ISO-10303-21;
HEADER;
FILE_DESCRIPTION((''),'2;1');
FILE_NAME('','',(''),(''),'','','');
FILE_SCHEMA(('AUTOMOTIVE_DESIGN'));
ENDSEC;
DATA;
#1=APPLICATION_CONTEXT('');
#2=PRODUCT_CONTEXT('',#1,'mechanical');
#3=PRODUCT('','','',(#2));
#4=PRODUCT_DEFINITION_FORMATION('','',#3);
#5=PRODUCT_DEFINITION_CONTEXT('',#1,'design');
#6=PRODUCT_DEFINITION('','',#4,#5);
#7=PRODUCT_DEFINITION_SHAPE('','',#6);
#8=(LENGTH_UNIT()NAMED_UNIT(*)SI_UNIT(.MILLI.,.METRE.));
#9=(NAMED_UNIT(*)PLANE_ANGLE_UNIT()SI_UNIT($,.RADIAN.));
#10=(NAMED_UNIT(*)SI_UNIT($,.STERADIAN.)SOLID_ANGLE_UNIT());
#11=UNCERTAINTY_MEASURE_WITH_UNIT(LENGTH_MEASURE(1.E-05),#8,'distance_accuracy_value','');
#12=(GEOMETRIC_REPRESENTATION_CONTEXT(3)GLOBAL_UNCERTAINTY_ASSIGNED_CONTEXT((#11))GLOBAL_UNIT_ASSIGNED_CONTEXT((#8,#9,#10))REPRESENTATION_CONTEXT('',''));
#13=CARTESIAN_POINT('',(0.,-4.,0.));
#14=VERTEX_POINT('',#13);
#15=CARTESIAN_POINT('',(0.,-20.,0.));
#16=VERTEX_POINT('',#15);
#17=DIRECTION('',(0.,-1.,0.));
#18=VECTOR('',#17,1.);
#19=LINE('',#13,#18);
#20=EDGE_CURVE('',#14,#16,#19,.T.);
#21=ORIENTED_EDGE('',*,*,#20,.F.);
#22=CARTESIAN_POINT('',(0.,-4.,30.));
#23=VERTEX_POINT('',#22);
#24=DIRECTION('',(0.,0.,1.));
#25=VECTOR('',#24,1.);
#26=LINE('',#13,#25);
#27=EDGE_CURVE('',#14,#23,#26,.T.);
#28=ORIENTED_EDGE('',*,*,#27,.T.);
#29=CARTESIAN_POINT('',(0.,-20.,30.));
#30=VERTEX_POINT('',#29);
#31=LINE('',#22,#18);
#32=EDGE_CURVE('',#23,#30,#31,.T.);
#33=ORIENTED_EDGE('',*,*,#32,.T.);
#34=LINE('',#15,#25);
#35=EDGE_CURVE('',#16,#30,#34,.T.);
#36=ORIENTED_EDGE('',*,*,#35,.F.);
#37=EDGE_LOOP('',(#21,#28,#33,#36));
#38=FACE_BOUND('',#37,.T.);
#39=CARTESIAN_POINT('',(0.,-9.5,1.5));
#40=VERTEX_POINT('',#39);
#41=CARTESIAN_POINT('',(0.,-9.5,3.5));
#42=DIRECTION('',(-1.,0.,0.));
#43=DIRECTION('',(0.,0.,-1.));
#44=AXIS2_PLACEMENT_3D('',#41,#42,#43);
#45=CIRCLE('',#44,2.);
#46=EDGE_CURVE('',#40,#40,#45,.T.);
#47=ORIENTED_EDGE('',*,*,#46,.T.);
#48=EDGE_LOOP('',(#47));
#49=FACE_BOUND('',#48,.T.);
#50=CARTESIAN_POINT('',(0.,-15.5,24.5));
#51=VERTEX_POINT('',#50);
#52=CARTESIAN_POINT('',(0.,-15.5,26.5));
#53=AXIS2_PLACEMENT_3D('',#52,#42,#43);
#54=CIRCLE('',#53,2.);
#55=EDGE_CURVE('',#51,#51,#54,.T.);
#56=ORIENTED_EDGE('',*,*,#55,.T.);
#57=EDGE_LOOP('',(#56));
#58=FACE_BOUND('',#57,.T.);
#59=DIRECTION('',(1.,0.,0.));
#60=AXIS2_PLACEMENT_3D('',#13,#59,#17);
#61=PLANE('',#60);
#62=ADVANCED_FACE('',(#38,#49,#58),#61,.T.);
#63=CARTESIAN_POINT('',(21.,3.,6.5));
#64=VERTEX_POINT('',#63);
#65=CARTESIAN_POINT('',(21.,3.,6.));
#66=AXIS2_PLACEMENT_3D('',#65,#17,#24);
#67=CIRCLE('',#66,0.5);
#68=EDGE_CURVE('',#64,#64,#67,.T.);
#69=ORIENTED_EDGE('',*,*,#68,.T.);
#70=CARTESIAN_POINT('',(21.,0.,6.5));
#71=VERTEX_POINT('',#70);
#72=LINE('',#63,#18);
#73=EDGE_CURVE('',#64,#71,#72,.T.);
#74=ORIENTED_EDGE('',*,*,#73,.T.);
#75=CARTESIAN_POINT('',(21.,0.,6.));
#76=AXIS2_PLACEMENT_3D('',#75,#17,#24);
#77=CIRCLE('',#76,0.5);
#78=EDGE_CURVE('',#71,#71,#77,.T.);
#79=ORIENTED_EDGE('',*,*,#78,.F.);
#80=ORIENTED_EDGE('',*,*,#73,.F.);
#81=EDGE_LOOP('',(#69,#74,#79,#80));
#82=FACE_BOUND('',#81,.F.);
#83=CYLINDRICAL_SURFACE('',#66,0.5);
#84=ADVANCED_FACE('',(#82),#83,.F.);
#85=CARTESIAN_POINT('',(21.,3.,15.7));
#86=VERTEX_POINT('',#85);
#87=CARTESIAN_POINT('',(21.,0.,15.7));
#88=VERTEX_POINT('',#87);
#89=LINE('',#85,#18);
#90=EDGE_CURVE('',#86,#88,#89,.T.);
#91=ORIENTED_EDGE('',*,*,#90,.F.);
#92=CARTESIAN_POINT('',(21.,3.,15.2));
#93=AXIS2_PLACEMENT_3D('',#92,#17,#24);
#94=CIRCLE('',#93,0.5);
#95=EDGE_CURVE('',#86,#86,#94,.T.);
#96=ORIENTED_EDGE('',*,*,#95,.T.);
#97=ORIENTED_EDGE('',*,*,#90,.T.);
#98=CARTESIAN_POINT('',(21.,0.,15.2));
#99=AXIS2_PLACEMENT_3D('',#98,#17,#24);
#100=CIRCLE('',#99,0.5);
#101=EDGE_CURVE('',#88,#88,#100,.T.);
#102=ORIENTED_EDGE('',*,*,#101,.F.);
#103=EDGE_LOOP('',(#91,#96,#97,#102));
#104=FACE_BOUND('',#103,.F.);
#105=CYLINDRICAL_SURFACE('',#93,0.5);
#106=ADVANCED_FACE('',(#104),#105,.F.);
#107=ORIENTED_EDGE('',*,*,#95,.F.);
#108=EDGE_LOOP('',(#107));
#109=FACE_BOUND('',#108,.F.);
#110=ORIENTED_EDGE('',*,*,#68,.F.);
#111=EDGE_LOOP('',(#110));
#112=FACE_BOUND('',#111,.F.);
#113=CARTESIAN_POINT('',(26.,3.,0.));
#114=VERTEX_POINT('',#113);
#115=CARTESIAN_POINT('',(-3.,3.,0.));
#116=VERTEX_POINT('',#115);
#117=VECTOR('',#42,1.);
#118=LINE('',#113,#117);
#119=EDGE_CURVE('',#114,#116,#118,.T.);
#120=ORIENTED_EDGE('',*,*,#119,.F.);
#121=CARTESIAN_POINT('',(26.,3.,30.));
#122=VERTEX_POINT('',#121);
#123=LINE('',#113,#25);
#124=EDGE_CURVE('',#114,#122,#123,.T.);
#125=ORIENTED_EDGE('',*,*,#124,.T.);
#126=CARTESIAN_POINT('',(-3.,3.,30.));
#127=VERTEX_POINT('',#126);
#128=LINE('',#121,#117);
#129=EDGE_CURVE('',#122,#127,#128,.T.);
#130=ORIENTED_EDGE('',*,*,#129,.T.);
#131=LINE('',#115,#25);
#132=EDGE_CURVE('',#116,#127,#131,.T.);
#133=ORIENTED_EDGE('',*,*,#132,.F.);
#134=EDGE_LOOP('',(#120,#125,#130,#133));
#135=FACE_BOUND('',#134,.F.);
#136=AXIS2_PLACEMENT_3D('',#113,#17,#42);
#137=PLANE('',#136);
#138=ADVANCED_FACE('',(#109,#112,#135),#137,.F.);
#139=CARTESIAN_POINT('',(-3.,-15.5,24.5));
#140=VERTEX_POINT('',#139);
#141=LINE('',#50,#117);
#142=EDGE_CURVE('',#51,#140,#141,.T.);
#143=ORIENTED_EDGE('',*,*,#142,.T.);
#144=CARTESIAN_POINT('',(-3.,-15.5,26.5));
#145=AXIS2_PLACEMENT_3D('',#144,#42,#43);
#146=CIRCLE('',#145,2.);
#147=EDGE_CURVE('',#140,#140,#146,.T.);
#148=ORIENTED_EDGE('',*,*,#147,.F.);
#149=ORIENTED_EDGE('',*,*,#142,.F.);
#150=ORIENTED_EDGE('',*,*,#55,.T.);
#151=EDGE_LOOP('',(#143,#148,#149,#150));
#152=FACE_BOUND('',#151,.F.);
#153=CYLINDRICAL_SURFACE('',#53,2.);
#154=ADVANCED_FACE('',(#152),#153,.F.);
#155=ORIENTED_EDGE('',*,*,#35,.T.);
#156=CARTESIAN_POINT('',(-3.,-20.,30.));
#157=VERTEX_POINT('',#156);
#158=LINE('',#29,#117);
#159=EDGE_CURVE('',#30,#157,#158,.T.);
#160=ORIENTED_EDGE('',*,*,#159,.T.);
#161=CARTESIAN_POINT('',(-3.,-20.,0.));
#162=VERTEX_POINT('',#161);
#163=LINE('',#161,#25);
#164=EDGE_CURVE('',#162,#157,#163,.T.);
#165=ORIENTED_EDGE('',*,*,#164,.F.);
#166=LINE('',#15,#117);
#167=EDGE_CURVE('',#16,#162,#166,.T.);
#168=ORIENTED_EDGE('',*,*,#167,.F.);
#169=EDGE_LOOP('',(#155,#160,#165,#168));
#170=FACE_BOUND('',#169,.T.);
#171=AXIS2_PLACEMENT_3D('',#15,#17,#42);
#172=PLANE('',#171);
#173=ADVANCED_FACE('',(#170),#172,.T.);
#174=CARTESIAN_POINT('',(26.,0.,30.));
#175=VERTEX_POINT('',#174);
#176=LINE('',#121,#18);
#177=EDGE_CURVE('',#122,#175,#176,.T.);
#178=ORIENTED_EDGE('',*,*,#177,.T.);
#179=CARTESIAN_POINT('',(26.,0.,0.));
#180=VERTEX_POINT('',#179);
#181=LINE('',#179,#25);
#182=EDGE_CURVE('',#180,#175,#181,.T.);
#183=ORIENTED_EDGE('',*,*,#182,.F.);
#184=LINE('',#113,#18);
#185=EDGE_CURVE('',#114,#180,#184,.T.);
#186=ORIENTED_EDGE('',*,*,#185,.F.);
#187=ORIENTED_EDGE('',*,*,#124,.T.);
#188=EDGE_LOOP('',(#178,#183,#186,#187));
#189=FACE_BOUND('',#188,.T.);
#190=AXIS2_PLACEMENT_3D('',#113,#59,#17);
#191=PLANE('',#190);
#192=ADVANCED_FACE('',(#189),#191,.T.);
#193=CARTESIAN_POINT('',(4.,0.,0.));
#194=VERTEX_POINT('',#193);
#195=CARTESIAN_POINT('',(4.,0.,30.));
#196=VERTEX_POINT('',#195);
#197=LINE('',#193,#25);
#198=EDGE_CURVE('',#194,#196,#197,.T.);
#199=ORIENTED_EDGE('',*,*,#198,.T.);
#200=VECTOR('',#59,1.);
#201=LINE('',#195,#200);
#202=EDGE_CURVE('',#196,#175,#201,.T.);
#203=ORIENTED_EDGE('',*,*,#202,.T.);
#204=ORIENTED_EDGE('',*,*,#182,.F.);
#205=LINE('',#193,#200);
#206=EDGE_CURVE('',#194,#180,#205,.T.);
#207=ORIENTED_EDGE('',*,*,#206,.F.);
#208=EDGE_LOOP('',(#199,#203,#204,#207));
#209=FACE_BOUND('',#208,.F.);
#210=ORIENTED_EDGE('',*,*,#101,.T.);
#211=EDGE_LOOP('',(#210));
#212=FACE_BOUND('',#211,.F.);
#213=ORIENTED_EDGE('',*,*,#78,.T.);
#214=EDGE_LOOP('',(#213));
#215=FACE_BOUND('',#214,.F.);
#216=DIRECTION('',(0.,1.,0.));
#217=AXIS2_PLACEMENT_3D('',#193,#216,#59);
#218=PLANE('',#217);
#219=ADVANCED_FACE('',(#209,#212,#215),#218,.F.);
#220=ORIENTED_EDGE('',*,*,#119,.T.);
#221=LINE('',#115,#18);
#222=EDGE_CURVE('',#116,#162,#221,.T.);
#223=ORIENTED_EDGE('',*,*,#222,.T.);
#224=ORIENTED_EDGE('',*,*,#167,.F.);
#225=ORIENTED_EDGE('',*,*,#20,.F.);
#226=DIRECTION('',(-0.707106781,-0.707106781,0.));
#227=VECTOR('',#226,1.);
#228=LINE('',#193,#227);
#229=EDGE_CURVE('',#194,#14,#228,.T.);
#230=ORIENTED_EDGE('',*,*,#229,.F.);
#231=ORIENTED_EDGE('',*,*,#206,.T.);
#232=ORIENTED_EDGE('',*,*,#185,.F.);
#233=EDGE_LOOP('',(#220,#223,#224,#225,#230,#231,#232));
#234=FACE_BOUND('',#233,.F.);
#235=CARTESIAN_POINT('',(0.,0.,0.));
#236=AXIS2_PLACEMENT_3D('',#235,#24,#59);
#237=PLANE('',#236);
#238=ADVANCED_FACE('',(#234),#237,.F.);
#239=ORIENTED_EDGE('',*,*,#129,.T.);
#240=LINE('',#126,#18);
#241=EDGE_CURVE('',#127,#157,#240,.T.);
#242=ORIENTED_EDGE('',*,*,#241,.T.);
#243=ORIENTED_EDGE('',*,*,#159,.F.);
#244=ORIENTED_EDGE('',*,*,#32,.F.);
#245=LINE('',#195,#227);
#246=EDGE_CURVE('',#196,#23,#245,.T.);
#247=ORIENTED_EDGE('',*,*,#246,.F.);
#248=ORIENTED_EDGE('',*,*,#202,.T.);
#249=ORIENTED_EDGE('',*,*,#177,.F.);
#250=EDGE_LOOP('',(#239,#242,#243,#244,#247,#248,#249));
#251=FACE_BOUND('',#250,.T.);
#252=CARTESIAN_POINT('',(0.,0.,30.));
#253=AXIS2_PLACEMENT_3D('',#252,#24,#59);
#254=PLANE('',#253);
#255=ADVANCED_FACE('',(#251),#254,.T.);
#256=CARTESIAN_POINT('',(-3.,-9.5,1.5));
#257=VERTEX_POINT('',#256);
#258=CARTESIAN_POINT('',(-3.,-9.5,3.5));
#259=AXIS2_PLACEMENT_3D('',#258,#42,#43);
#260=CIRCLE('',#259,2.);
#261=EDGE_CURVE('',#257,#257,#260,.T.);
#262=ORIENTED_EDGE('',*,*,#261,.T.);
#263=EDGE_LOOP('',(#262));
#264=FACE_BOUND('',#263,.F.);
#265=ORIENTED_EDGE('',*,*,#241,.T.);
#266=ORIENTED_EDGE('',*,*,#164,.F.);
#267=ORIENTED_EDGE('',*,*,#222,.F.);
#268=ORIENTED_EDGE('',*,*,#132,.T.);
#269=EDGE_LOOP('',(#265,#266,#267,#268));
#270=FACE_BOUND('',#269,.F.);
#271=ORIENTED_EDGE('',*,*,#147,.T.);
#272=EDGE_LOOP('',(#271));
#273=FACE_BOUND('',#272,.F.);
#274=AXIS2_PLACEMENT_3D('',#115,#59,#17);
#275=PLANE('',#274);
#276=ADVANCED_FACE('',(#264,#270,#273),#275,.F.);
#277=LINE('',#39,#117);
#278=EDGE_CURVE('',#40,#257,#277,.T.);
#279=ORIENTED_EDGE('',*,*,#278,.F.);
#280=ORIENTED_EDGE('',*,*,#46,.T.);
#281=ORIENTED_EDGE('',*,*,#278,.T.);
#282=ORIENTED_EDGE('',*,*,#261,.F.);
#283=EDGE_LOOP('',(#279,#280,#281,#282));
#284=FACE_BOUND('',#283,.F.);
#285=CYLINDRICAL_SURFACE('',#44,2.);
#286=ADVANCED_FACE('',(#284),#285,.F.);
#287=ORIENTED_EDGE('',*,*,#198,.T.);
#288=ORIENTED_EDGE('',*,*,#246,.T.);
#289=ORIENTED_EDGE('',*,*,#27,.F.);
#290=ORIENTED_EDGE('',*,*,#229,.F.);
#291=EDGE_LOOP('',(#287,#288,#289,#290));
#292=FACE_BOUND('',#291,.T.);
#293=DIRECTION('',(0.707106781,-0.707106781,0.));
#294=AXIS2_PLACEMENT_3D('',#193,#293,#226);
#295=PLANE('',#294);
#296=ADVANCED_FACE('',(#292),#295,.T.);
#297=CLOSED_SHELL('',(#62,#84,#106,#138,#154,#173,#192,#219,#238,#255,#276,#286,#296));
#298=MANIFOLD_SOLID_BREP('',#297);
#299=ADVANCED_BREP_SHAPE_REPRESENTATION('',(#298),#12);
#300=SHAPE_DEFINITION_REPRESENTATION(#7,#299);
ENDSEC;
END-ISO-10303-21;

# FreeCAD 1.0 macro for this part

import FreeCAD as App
import Part
import Sketcher
from FreeCAD import Vector

doc = App.newDocument("Part")
body = doc.addObject("PartDesign::Body", "Body")

# Sketch on XY plane
sketch1 = doc.addObject("Sketcher::SketchObject", "Sketch")
body.addObject(sketch1)
sketch1.AttachmentSupport = (doc.XY_Plane, [""])
sketch1.MapMode = "FlatFace"
sketch1.addGeometry(Part.LineSegment(Vector(0, -20, 0), Vector(0, -4, 0)), False)
sketch1.addGeometry(Part.LineSegment(Vector(0, -4, 0), Vector(4, 0, 0)), False)
sketch1.addGeometry(Part.LineSegment(Vector(4, 0, 0), Vector(26, 0, 0)), False)
sketch1.addGeometry(Part.LineSegment(Vector(26, 0, 0), Vector(26, 3, 0)), False)
sketch1.addGeometry(Part.LineSegment(Vector(26, 3, 0), Vector(-3, 3, 0)), False)
sketch1.addGeometry(Part.LineSegment(Vector(-3, 3, 0), Vector(-3, -20, 0)), False)
sketch1.addGeometry(Part.LineSegment(Vector(-3, -20, 0), Vector(0, -20, 0)), False)
sketch1.addConstraint(Sketcher.Constraint("Coincident", 0, 2, 1, 1))
sketch1.addConstraint(Sketcher.Constraint("Coincident", 1, 2, 2, 1))
sketch1.addConstraint(Sketcher.Constraint("Coincident", 2, 2, 3, 1))
sketch1.addConstraint(Sketcher.Constraint("Coincident", 3, 2, 4, 1))
sketch1.addConstraint(Sketcher.Constraint("Coincident", 4, 2, 5, 1))
sketch1.addConstraint(Sketcher.Constraint("Coincident", 5, 2, 6, 1))
sketch1.addConstraint(Sketcher.Constraint("Coincident", 6, 2, 0, 1))
sketch1.addConstraint(Sketcher.Constraint("Vertical", 0))
sketch1.addConstraint(Sketcher.Constraint("Horizontal", 2))
sketch1.addConstraint(Sketcher.Constraint("Vertical", 3))
sketch1.addConstraint(Sketcher.Constraint("Horizontal", 4))
sketch1.addConstraint(Sketcher.Constraint("Vertical", 5))
sketch1.addConstraint(Sketcher.Constraint("Horizontal", 6))
sketch1.addConstraint(Sketcher.Constraint("PointOnObject", 0, 2, -2))
sketch1.addConstraint(Sketcher.Constraint("PointOnObject", 1, 2, -1))
sketch1.addConstraint(Sketcher.Constraint("Equal", 6, 3))
sketch1.addConstraint(Sketcher.Constraint("DistanceX", 6, 1, 6, 2, 3.0))
sketch1.addConstraint(Sketcher.Constraint("DistanceY", 0, 2, -1, 1, 4.0))
sketch1.addConstraint(Sketcher.Constraint("DistanceX", -1, 1, 1, 2, 4.0))
sketch1.addConstraint(Sketcher.Constraint("DistanceX", -1, 1, 2, 2, 26.0))
sketch1.addConstraint(Sketcher.Constraint("DistanceY", 5, 2, -1, 1, 20.0))
pad1 = doc.addObject("PartDesign::Pad", "Pad")
body.addObject(pad1)
pad1.Profile = sketch1
pad1.Length = 30

# Sketch on XZ plane
sketch2 = doc.addObject("Sketcher::SketchObject", "Sketch001")
body.addObject(sketch2)
sketch2.AttachmentSupport = (doc.XZ_Plane, [""])
sketch2.MapMode = "FlatFace"
sketch2.AttachmentOffset = App.Placement(Vector(0, 0, -3), App.Rotation())
sketch2.addGeometry(Part.Circle(Vector(21, 6, 0), Vector(0, 0, 1), 0.5), False)
sketch2.addGeometry(Part.Circle(Vector(21, 15.2, 0), Vector(0, 0, 1), 0.5), False)
sketch2.addConstraint(Sketcher.Constraint("Equal", 0, 1))
sketch2.addConstraint(Sketcher.Constraint("Vertical", 0, 3, 1, 3))
sketch2.addConstraint(Sketcher.Constraint("Diameter", 0, 1.0))
sketch2.addConstraint(Sketcher.Constraint("DistanceX", -1, 1, 0, 3, 21.0))
sketch2.addConstraint(Sketcher.Constraint("DistanceY", -1, 1, 0, 3, 6.0))
sketch2.addConstraint(Sketcher.Constraint("DistanceY", -1, 1, 1, 3, 15.2))
doc.recompute()
hole = doc.addObject("PartDesign::Hole", "Hole")
body.addObject(hole)
hole.Profile = sketch2
hole.ThreadType = "None"
hole.Diameter = 1
hole.DepthType = "ThroughAll"
hole.Reversed = True

# Sketch on YZ plane
sketch3 = doc.addObject("Sketcher::SketchObject", "Sketch002")
body.addObject(sketch3)
sketch3.AttachmentSupport = (doc.YZ_Plane, [""])
sketch3.MapMode = "FlatFace"
sketch3.addGeometry(Part.Circle(Vector(-9.5, 3.5, 0), Vector(0, 0, 1), 2), False)
sketch3.addGeometry(Part.Circle(Vector(-15.5, 26.5, 0), Vector(0, 0, 1), 2), False)
sketch3.addConstraint(Sketcher.Constraint("Equal", 0, 1))
sketch3.addConstraint(Sketcher.Constraint("Diameter", 0, 4.0))
sketch3.addConstraint(Sketcher.Constraint("DistanceX", 1, 3, 0, 3, 6.0))
sketch3.addConstraint(Sketcher.Constraint("DistanceY", 0, 3, 1, 3, 23.0))
sketch3.addConstraint(Sketcher.Constraint("DistanceX", 0, 3, -1, 1, 9.5))
sketch3.addConstraint(Sketcher.Constraint("DistanceY", -1, 1, 0, 3, 3.5))
doc.recompute()
hole2 = doc.addObject("PartDesign::Hole", "Hole001")
body.addObject(hole2)
hole2.Profile = sketch3
hole2.ThreadType = "None"
hole2.Diameter = 4
hole2.DepthType = "ThroughAll"

doc.recompute()
